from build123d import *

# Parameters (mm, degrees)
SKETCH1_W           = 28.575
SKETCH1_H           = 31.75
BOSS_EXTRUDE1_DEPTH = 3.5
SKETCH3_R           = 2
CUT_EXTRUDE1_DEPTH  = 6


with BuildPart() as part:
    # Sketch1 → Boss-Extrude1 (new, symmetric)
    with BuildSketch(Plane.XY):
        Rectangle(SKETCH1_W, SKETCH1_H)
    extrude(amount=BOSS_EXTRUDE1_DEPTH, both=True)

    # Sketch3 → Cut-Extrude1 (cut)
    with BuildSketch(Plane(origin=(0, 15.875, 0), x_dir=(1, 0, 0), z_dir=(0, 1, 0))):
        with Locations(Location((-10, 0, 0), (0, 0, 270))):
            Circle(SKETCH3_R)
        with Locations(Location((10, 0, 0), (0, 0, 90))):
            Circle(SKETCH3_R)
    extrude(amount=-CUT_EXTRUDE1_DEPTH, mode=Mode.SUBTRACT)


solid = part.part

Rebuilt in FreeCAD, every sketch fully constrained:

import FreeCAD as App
import Part
import Sketcher

V = App.Vector

doc = App.newDocument("Part")
body = doc.addObject("PartDesign::Body", "Body")

# Sketch on XY plane
sketch1 = doc.addObject("Sketcher::SketchObject", "Sketch")
body.addObject(sketch1)
sketch1.AttachmentSupport = (doc.XY_Plane, [""])
sketch1.MapMode = "FlatFace"
sketch1.addGeometry([
    Part.LineSegment(V(-14.2875, 15.875, 0), V(-14.2875, -15.875, 0)),
    Part.LineSegment(V(-14.2875, -15.875, 0), V(14.2875, -15.875, 0)),
    Part.LineSegment(V(14.2875, -15.875, 0), V(14.2875, 15.875, 0)),
    Part.LineSegment(V(14.2875, 15.875, 0), V(-14.2875, 15.875, 0)),
], False)
sketch1.addConstraint([
    Sketcher.Constraint("Coincident", 0, 2, 1, 1),
    Sketcher.Constraint("Coincident", 1, 2, 2, 1),
    Sketcher.Constraint("Coincident", 2, 2, 3, 1),
    Sketcher.Constraint("Coincident", 3, 2, 0, 1),
    Sketcher.Constraint("Vertical", 0),
    Sketcher.Constraint("Horizontal", 1),
    Sketcher.Constraint("Vertical", 2),
    Sketcher.Constraint("Horizontal", 3),
    Sketcher.Constraint("Symmetric", 0, 2, 2, 2, -1, 1),
    Sketcher.Constraint("DistanceY", 0, 2, 0, 1, 31.75),
    Sketcher.Constraint("DistanceX", 1, 1, 1, 2, 28.575),
])
pad1 = doc.addObject("PartDesign::Pad", "Pad")
body.addObject(pad1)
pad1.Profile = sketch1
pad1.Length = 7
pad1.Midplane = True

# Sketch on XZ plane
sketch2 = doc.addObject("Sketcher::SketchObject", "Sketch001")
body.addObject(sketch2)
sketch2.AttachmentSupport = (doc.XZ_Plane, [""])
sketch2.MapMode = "FlatFace"
sketch2.AttachmentOffset = App.Placement(V(0, 0, -15.875), App.Rotation())
sketch2.addGeometry([
    Part.Circle(V(-10, 0, 0), V(0, 0, 1), 2),
    Part.Circle(V(10, 0, 0), V(0, 0, 1), 2),
], False)
sketch2.addConstraint([
    Sketcher.Constraint("Equal", 0, 1),
    Sketcher.Constraint("Symmetric", 0, 3, 1, 3, -1, 1),
    Sketcher.Constraint("PointOnObject", 0, 3, -1),
    Sketcher.Constraint("Diameter", 0, 4.0),
    Sketcher.Constraint("DistanceX", 0, 3, -1, 1, 10.0),
])
pocket1 = doc.addObject("PartDesign::Pocket", "Pocket")
body.addObject(pocket1)
pocket1.Profile = sketch2
pocket1.Length = 6
pocket1.Reversed = True

doc.recompute()
